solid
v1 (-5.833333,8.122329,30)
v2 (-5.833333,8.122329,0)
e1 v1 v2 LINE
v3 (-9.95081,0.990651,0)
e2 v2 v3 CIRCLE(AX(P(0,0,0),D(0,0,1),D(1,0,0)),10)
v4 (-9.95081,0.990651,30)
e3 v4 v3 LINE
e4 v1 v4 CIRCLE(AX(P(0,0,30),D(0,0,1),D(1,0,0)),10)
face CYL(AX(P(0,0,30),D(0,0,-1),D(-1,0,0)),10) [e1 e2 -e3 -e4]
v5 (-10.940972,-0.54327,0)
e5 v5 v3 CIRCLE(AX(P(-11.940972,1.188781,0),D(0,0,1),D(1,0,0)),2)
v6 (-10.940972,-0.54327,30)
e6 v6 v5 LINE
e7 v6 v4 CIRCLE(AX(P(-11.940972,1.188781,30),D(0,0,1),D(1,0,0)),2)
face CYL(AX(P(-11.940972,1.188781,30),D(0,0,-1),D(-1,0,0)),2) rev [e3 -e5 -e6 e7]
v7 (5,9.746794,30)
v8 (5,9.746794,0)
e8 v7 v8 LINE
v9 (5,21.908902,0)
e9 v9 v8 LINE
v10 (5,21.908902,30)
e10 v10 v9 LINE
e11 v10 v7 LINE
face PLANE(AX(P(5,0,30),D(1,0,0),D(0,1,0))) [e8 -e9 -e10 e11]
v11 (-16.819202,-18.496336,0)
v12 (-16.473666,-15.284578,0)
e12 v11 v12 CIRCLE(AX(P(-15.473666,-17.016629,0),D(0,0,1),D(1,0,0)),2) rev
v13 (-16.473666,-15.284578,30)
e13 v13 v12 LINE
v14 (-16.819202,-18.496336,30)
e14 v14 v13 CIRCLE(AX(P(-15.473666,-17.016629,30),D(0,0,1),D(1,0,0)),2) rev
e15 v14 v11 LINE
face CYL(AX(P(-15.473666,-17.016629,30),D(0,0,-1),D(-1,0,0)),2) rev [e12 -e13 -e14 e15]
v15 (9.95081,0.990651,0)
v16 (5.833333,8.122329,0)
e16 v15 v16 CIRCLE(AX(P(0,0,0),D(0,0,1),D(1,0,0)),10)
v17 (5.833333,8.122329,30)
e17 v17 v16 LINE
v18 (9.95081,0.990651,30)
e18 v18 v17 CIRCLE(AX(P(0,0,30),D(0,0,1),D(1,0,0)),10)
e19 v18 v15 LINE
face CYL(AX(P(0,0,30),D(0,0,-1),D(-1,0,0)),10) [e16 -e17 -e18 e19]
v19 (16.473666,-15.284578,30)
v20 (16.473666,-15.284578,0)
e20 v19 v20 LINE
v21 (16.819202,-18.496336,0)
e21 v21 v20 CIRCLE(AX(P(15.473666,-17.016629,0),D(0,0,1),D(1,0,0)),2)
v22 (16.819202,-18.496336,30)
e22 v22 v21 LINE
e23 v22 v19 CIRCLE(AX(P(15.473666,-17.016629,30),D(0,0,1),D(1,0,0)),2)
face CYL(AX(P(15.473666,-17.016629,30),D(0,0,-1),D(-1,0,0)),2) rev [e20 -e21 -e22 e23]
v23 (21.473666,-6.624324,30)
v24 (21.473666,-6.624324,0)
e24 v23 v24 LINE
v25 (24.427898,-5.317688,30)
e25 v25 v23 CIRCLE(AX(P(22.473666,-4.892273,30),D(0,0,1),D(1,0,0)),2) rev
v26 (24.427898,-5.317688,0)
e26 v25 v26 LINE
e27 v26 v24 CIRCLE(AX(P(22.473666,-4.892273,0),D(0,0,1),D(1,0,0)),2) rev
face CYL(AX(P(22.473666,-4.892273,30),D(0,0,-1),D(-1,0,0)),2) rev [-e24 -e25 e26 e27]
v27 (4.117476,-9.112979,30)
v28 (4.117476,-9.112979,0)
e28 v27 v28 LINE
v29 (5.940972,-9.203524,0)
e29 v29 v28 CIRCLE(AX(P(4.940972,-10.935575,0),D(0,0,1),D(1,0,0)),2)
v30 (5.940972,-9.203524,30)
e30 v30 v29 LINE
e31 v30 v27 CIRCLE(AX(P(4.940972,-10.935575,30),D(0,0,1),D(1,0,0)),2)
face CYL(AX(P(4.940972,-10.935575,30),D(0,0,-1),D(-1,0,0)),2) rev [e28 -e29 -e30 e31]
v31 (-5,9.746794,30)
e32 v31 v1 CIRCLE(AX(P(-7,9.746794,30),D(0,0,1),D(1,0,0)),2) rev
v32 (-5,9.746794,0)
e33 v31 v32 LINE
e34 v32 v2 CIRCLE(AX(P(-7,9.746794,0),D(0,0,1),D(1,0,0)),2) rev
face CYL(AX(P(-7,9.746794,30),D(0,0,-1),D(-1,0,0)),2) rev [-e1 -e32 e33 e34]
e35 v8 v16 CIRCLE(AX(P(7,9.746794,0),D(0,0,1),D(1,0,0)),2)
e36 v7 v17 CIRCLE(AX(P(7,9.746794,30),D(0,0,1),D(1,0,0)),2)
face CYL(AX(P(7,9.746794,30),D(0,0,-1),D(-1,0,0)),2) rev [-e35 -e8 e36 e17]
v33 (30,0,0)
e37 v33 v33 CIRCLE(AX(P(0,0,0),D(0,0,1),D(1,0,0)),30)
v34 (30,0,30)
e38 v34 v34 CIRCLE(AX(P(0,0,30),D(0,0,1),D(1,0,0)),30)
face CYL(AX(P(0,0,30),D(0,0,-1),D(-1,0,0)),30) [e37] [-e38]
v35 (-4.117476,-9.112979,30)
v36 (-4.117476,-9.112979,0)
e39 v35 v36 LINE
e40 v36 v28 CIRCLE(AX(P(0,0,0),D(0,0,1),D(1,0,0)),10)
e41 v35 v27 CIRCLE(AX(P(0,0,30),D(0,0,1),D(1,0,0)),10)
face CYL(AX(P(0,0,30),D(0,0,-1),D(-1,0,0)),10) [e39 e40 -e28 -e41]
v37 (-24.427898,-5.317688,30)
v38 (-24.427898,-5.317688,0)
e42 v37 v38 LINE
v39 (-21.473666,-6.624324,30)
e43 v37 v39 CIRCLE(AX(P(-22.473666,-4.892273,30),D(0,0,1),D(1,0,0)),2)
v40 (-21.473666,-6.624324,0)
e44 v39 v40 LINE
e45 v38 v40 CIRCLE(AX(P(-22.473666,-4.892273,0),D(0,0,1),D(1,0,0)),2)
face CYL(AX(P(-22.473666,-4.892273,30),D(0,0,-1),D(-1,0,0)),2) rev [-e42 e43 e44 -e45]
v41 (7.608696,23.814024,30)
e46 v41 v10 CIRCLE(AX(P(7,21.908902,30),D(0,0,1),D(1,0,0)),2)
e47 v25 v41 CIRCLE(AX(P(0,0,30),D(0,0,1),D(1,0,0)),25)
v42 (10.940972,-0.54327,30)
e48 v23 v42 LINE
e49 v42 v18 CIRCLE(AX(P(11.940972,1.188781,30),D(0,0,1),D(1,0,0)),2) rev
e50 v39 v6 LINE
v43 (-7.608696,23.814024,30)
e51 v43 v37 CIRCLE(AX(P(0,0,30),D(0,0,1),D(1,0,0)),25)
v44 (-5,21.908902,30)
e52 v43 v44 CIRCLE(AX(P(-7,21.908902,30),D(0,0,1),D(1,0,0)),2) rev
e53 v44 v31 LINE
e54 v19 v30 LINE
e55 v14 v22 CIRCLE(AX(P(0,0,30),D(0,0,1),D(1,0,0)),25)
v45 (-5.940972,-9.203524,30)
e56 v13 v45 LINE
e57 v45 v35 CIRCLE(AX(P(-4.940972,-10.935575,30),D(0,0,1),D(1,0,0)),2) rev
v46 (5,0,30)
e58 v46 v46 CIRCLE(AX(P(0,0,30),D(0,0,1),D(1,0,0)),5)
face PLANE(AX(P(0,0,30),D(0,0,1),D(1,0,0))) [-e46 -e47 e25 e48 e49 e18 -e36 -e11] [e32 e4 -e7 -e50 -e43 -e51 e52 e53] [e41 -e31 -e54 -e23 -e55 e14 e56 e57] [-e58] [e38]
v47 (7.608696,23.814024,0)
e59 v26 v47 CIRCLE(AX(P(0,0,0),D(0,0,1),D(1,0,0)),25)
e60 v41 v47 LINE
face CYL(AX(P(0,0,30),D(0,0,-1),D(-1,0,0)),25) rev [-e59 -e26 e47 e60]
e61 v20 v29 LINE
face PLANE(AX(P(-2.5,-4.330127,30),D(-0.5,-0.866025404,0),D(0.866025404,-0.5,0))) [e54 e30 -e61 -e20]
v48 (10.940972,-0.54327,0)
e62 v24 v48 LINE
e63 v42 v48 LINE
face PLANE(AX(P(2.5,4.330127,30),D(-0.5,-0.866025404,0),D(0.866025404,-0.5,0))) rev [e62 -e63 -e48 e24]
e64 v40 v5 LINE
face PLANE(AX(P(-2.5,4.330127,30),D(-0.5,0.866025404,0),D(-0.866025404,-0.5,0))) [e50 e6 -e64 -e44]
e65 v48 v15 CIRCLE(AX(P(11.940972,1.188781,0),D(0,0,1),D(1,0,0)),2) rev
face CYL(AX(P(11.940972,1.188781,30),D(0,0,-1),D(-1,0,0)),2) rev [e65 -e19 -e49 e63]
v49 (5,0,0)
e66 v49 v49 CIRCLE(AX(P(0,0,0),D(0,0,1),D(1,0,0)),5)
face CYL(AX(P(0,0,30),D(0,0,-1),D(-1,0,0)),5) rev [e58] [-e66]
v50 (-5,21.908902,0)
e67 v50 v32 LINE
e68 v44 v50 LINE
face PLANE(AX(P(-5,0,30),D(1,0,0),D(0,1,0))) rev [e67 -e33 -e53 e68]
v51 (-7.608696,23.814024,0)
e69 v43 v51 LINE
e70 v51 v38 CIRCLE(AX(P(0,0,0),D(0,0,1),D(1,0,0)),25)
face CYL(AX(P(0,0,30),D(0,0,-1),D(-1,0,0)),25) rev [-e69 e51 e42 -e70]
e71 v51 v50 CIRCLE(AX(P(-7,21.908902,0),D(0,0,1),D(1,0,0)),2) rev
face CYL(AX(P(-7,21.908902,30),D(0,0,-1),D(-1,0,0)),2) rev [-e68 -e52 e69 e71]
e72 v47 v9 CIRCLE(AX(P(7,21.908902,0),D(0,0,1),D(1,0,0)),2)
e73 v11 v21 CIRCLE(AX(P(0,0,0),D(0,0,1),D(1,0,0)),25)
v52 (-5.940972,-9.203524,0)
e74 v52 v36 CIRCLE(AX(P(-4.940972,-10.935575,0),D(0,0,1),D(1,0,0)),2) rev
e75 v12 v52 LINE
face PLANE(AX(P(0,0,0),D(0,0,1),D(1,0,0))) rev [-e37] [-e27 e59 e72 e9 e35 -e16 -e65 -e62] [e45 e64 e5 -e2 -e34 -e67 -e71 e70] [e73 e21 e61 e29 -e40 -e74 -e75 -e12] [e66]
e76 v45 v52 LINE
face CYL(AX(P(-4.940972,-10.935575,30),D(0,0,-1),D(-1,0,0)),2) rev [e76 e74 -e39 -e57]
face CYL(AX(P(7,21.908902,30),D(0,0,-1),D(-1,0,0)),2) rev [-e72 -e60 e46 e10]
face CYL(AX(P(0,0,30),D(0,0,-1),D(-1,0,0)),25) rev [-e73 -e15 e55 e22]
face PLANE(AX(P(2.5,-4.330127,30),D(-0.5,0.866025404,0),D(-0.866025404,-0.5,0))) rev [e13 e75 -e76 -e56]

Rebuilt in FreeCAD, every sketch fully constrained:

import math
import FreeCAD as App
import Part
import Sketcher
Q = App.Units.Quantity

doc = App.newDocument("Part")
params = doc.addObject("Spreadsheet::Sheet", "Params")
for row, (alias, value) in enumerate([
    ("sketch1_diameter", "60 mm"),
    ("sketch1_diameter2", "10 mm"),
    ("sketch1_radius", "25 mm"),
    ("sketch1_radius2", "2 mm"),
    ("sketch1_radius3", "10 mm"),
    ("pad1_length", "30 mm"),
], start=1):
    params.set(f"A{row}", alias)
    params.set(f"B{row}", "=" + value)
    params.setAlias(f"B{row}", alias)

body = doc.addObject("PartDesign::Body", "Body")

sketch1 = body.newObject("Sketcher::SketchObject", "Sketch")
sketch1.AttachmentSupport = (doc.getObject("XY_Plane"), [""])
sketch1.MapMode = "FlatFace"
sketch1.addGeometry(Part.Circle(App.Vector(0, 0, 0), App.Vector(0, 0, 1), 30), False)
sketch1.addGeometry(Part.ArcOfCircle(Part.Circle(App.Vector(0, 0, 0), App.Vector(0, 0, 1), 25), math.radians(-12), math.radians(72)), False)
sketch1.addGeometry(Part.ArcOfCircle(Part.Circle(App.Vector(22.5, -4.9, 0), App.Vector(0, 0, 1), 2), math.radians(-120), math.radians(-12)), False)
sketch1.addGeometry(Part.LineSegment(App.Vector(21.5, -6.6, 0), App.Vector(10.9, -0.5, 0)), False)
sketch1.addGeometry(Part.ArcOfCircle(Part.Circle(App.Vector(11.9, 1.2, 0), App.Vector(0, 0, 1), 2), math.radians(-174), math.radians(-120)), False)
sketch1.addGeometry(Part.ArcOfCircle(Part.Circle(App.Vector(0, 0, 0), App.Vector(0, 0, 1), 10), math.radians(6), math.radians(54)), False)
sketch1.addGeometry(Part.ArcOfCircle(Part.Circle(App.Vector(7, 9.7, 0), App.Vector(0, 0, 1), 2), math.radians(180), math.radians(234)), False)
sketch1.addGeometry(Part.LineSegment(App.Vector(5, 9.7, 0), App.Vector(5, 21.9, 0)), False)
sketch1.addGeometry(Part.ArcOfCircle(Part.Circle(App.Vector(7, 21.9, 0), App.Vector(0, 0, 1), 2), math.radians(72), math.radians(180)), False)
sketch1.addGeometry(Part.ArcOfCircle(Part.Circle(App.Vector(0, 0, 0), App.Vector(0, 0, 1), 25), math.radians(108), math.radians(192)), False)
sketch1.addGeometry(Part.ArcOfCircle(Part.Circle(App.Vector(-7, 21.9, 0), App.Vector(0, 0, 1), 2), math.radians(0), math.radians(108)), False)
sketch1.addGeometry(Part.LineSegment(App.Vector(-5, 21.9, 0), App.Vector(-5, 9.7, 0)), False)
sketch1.addGeometry(Part.ArcOfCircle(Part.Circle(App.Vector(-7, 9.7, 0), App.Vector(0, 0, 1), 2), math.radians(-54), math.radians(0)), False)
sketch1.addGeometry(Part.ArcOfCircle(Part.Circle(App.Vector(0, 0, 0), App.Vector(0, 0, 1), 10), math.radians(126), math.radians(174)), False)
sketch1.addGeometry(Part.ArcOfCircle(Part.Circle(App.Vector(-11.9, 1.2, 0), App.Vector(0, 0, 1), 2), math.radians(-60), math.radians(-6)), False)
sketch1.addGeometry(Part.LineSegment(App.Vector(-10.9, -0.5, 0), App.Vector(-21.5, -6.6, 0)), False)
sketch1.addGeometry(Part.ArcOfCircle(Part.Circle(App.Vector(-22.5, -4.9, 0), App.Vector(0, 0, 1), 2), math.radians(-168), math.radians(-60)), False)
sketch1.addGeometry(Part.ArcOfCircle(Part.Circle(App.Vector(0, 0, 0), App.Vector(0, 0, 1), 25), math.radians(-132), math.radians(-48)), False)
sketch1.addGeometry(Part.ArcOfCircle(Part.Circle(App.Vector(-15.5, -17, 0), App.Vector(0, 0, 1), 2), math.radians(120), math.radians(228)), False)
sketch1.addGeometry(Part.LineSegment(App.Vector(-16.5, -15.3, 0), App.Vector(-5.9, -9.2, 0)), False)
sketch1.addGeometry(Part.ArcOfCircle(Part.Circle(App.Vector(-4.9, -10.9, 0), App.Vector(0, 0, 1), 2), math.radians(66), math.radians(120)), False)
sketch1.addGeometry(Part.ArcOfCircle(Part.Circle(App.Vector(0, 0, 0), App.Vector(0, 0, 1), 10), math.radians(-114), math.radians(-66)), False)
sketch1.addGeometry(Part.ArcOfCircle(Part.Circle(App.Vector(4.9, -10.9, 0), App.Vector(0, 0, 1), 2), math.radians(60), math.radians(114)), False)
sketch1.addGeometry(Part.LineSegment(App.Vector(5.9, -9.2, 0), App.Vector(16.5, -15.3, 0)), False)
sketch1.addGeometry(Part.ArcOfCircle(Part.Circle(App.Vector(15.5, -17, 0), App.Vector(0, 0, 1), 2), math.radians(-48), math.radians(60)), False)
sketch1.addGeometry(Part.Circle(App.Vector(0, 0, 0), App.Vector(0, 0, 1), 5), False)
sketch1.addConstraint(Sketcher.Constraint("Tangent", 1, 1, 2, 2))
sketch1.addConstraint(Sketcher.Constraint("Tangent", 2, 1, 3, 1))
sketch1.addConstraint(Sketcher.Constraint("Tangent", 3, 2, 4, 2))
sketch1.addConstraint(Sketcher.Constraint("Tangent", 4, 1, 5, 1))
sketch1.addConstraint(Sketcher.Constraint("Tangent", 5, 2, 6, 2))
sketch1.addConstraint(Sketcher.Constraint("Tangent", 6, 1, 7, 1))
sketch1.addConstraint(Sketcher.Constraint("Tangent", 7, 2, 8, 2))
sketch1.addConstraint(Sketcher.Constraint("Tangent", 8, 1, 1, 2))
sketch1.addConstraint(Sketcher.Constraint("Tangent", 9, 1, 10, 2))
sketch1.addConstraint(Sketcher.Constraint("Tangent", 10, 1, 11, 1))
sketch1.addConstraint(Sketcher.Constraint("Tangent", 11, 2, 12, 2))
sketch1.addConstraint(Sketcher.Constraint("Tangent", 12, 1, 13, 1))
sketch1.addConstraint(Sketcher.Constraint("Tangent", 13, 2, 14, 2))
sketch1.addConstraint(Sketcher.Constraint("Tangent", 14, 1, 15, 1))
sketch1.addConstraint(Sketcher.Constraint("Tangent", 15, 2, 16, 2))
sketch1.addConstraint(Sketcher.Constraint("Tangent", 16, 1, 9, 2))
sketch1.addConstraint(Sketcher.Constraint("Tangent", 17, 1, 18, 2))
sketch1.addConstraint(Sketcher.Constraint("Tangent", 18, 1, 19, 1))
sketch1.addConstraint(Sketcher.Constraint("Tangent", 19, 2, 20, 2))
sketch1.addConstraint(Sketcher.Constraint("Tangent", 20, 1, 21, 1))
sketch1.addConstraint(Sketcher.Constraint("Tangent", 21, 2, 22, 2))
sketch1.addConstraint(Sketcher.Constraint("Tangent", 22, 1, 23, 1))
sketch1.addConstraint(Sketcher.Constraint("Tangent", 23, 2, 24, 2))
sketch1.addConstraint(Sketcher.Constraint("Tangent", 24, 1, 17, 2))
sketch1.addConstraint(Sketcher.Constraint("Vertical", 7))
sketch1.addConstraint(Sketcher.Constraint("Vertical", 11))
sketch1.addConstraint(Sketcher.Constraint("Coincident", 0, 3, -1, 1))
sketch1.addConstraint(Sketcher.Constraint("Coincident", 1, 3, -1, 1))
sketch1.addConstraint(Sketcher.Constraint("Coincident", 5, 3, -1, 1))
sketch1.addConstraint(Sketcher.Constraint("Coincident", 9, 3, -1, 1))
sketch1.addConstraint(Sketcher.Constraint("Coincident", 13, 3, -1, 1))
sketch1.addConstraint(Sketcher.Constraint("Coincident", 17, 3, -1, 1))
sketch1.addConstraint(Sketcher.Constraint("Coincident", 21, 3, -1, 1))
sketch1.addConstraint(Sketcher.Constraint("Coincident", 25, 3, -1, 1))
sketch1.addConstraint(Sketcher.Constraint("Equal", 2, 4))
sketch1.addConstraint(Sketcher.Constraint("Equal", 4, 6))
sketch1.addConstraint(Sketcher.Constraint("Equal", 6, 8))
sketch1.addConstraint(Sketcher.Constraint("Equal", 1, 9))
sketch1.addConstraint(Sketcher.Constraint("Equal", 8, 10))
sketch1.addConstraint(Sketcher.Constraint("Equal", 10, 12))
sketch1.addConstraint(Sketcher.Constraint("Equal", 5, 13))
sketch1.addConstraint(Sketcher.Constraint("Equal", 12, 14))
sketch1.addConstraint(Sketcher.Constraint("Equal", 14, 16))
sketch1.addConstraint(Sketcher.Constraint("Equal", 9, 17))
sketch1.addConstraint(Sketcher.Constraint("Equal", 16, 18))
sketch1.addConstraint(Sketcher.Constraint("Equal", 18, 20))
sketch1.addConstraint(Sketcher.Constraint("Equal", 13, 21))
sketch1.addConstraint(Sketcher.Constraint("Equal", 20, 22))
sketch1.addConstraint(Sketcher.Constraint("Equal", 22, 24))
sketch1.addConstraint(Sketcher.Constraint("Symmetric", 3, 2, 14, 1, -2))
sketch1.addConstraint(Sketcher.Constraint("Symmetric", 19, 2, 22, 1, -2))
sketch1.addConstraint(Sketcher.Constraint("Parallel", 15, 19))
sketch1.addConstraint(Sketcher.Constraint("Horizontal", 8, 3, 10, 3))
sketch1.addConstraint(Sketcher.Constraint("Equal", 15, 19))
sketch1.addConstraint(Sketcher.Constraint("Diameter", 0, Q("60 mm")))
sketch1.addConstraint(Sketcher.Constraint("Diameter", 25, Q("10 mm")))
sketch1.addConstraint(Sketcher.Constraint("Radius", 1, Q("25 mm")))
sketch1.addConstraint(Sketcher.Constraint("Radius", 2, Q("2 mm")))
sketch1.addConstraint(Sketcher.Constraint("Radius", 5, Q("10 mm")))
sketch1.addConstraint(Sketcher.Constraint("Angle", 3, Q("150 deg")))
sketch1.addConstraint(Sketcher.Constraint("DistanceX", -1, 1, 6, 3, Q("7 mm")))
sketch1.addConstraint(Sketcher.Constraint("DistanceX", 16, 3, 18, 3, Q("7 mm")))
sketch1.setExpression("Constraints[54]", "Params.sketch1_diameter")
sketch1.setExpression("Constraints[55]", "Params.sketch1_diameter2")
sketch1.setExpression("Constraints[56]", "Params.sketch1_radius")
sketch1.setExpression("Constraints[57]", "Params.sketch1_radius2")
sketch1.setExpression("Constraints[58]", "Params.sketch1_radius3")
pad1 = body.newObject("PartDesign::Pad", "Pad")
pad1.Profile = sketch1
pad1.setExpression("Length", "Params.pad1_length")

doc.recompute()
